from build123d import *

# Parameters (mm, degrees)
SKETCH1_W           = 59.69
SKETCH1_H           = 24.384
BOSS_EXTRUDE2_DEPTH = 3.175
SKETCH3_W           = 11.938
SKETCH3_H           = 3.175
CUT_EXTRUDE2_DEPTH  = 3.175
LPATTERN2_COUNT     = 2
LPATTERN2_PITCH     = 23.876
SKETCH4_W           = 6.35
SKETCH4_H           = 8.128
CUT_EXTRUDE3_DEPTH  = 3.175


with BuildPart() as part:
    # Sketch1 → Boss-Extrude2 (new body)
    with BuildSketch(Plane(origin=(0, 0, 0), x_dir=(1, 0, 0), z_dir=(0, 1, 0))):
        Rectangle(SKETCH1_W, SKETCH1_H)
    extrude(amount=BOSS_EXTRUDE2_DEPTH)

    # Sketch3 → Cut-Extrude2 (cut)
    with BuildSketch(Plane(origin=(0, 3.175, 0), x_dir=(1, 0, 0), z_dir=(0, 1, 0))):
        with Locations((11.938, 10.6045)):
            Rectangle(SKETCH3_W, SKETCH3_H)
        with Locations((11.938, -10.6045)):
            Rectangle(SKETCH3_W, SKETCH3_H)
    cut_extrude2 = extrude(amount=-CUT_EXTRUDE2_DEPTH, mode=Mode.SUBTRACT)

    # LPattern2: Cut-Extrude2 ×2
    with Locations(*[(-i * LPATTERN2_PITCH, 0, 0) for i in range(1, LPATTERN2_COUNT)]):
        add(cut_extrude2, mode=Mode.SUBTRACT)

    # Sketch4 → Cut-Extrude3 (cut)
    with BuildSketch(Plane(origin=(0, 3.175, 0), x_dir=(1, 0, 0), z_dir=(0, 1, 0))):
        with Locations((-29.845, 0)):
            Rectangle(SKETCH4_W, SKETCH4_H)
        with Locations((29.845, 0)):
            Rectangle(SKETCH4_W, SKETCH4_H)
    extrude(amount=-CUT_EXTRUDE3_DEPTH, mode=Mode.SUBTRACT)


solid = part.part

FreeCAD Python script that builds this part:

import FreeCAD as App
import Part
import Sketcher
Q = App.Units.Quantity


def add_polygon(sketch, points):
    """Adds a closed chain of lines whose ends are joined by coincident constraints."""
    first, n = sketch.GeometryCount, len(points)
    for a, b in zip(points, points[1:] + points[:1]):
        sketch.addGeometry(Part.LineSegment(App.Vector(*a, 0), App.Vector(*b, 0)), False)
    for i in range(n):
        sketch.addConstraint(Sketcher.Constraint("Coincident", first + i, 2, first + (i + 1) % n, 1))

doc = App.newDocument("Part")
body = doc.addObject("PartDesign::Body", "Body")

# Sketch on XZ plane
sketch1 = body.newObject("Sketcher::SketchObject", "Sketch")
sketch1.AttachmentSupport = (doc.getObject("XZ_Plane"), [""])
sketch1.MapMode = "FlatFace"
add_polygon(sketch1, [(-30, -12), (-30, 12), (30, 12), (30, -12)])  # lines 0-3
sketch1.addConstraint([
    Sketcher.Constraint("Vertical", 0),
    Sketcher.Constraint("Horizontal", 1),
    Sketcher.Constraint("Vertical", 2),
    Sketcher.Constraint("Horizontal", 3),
    Sketcher.Constraint("Symmetric", 0, 2, 2, 2, -1, 1),
    Sketcher.Constraint("DistanceX", 1, 1, 1, 2, Q("2.35 in")),
    Sketcher.Constraint("DistanceY", 0, 1, 0, 2, Q("0.96 in")),
])
pad1 = body.newObject("PartDesign::Pad", "Pad")
pad1.Profile = sketch1
pad1.Length = Q("0.125 in")
pad1.Reversed = True

# Sketch on XZ plane
sketch2 = body.newObject("Sketcher::SketchObject", "Sketch001")
sketch2.AttachmentSupport = (doc.getObject("XZ_Plane"), [""])
sketch2.MapMode = "FlatFace"
sketch2.AttachmentOffset = App.Placement(App.Vector(0, 0, -0.125 * 25.4), App.Rotation())
add_polygon(sketch2, [(6, -12.2), (6, -9), (17.9, -9), (17.9, -12.2)])  # lines 0-3
add_polygon(sketch2, [(6, 9), (6, 12.2), (17.9, 12.2), (17.9, 9)])  # lines 4-7
sketch2.addConstraint([
    Sketcher.Constraint("Vertical", 0),
    Sketcher.Constraint("Horizontal", 1),
    Sketcher.Constraint("Vertical", 2),
    Sketcher.Constraint("Horizontal", 3),
    Sketcher.Constraint("Vertical", 4),
    Sketcher.Constraint("Horizontal", 5),
    Sketcher.Constraint("Vertical", 6),
    Sketcher.Constraint("Horizontal", 7),
    Sketcher.Constraint("Symmetric", 3, 2, 4, 2, -1),
    Sketcher.Constraint("Symmetric", 1, 2, 6, 2, -1),
    Sketcher.Constraint("DistanceX", 1, 1, 1, 2, Q("0.47 in")),
    Sketcher.Constraint("DistanceY", 0, 1, 0, 2, Q("0.125 in")),
    Sketcher.Constraint("DistanceY", 2, 2, -1, 1, Q("0.48 in")),
    Sketcher.Constraint("DistanceX", -1, 1, 0, 2, Q("0.235 in")),
])
pocket1 = body.newObject("PartDesign::Pocket", "Pocket")
pocket1.Profile = sketch2
pocket1.Length = Q("0.125 in")
pocket1.Reversed = True
doc.recompute()

linearpattern = body.newObject("PartDesign::LinearPattern", "LinearPattern")
linearpattern.Originals = [pocket1]
linearpattern.Direction = (doc.getObject("X_Axis"), [""])
linearpattern.Mode = "offset"
linearpattern.Offset = Q("0.94 in")
linearpattern.Occurrences = 2
linearpattern.Reversed = True
body.Tip = linearpattern

# Sketch on XZ plane
sketch3 = body.newObject("Sketcher::SketchObject", "Sketch002")
sketch3.AttachmentSupport = (doc.getObject("XZ_Plane"), [""])
sketch3.MapMode = "FlatFace"
sketch3.AttachmentOffset = App.Placement(App.Vector(0, 0, -0.125 * 25.4), App.Rotation())
add_polygon(sketch3, [(-33, -4), (-33, 4), (-27, 4), (-27, -4)])  # lines 0-3
add_polygon(sketch3, [(27, -4), (27, 4), (33, 4), (33, -4)])  # lines 4-7
sketch3.addConstraint([
    Sketcher.Constraint("Vertical", 0),
    Sketcher.Constraint("Horizontal", 1),
    Sketcher.Constraint("Vertical", 2),
    Sketcher.Constraint("Horizontal", 3),
    Sketcher.Constraint("Vertical", 4),
    Sketcher.Constraint("Horizontal", 5),
    Sketcher.Constraint("Vertical", 6),
    Sketcher.Constraint("Horizontal", 7),
    Sketcher.Constraint("Symmetric", 2, 2, 4, 2, -1, 1),
    Sketcher.Constraint("Symmetric", 0, 2, 6, 2, -1, 1),
    Sketcher.Constraint("Horizontal", 1, 2, 4, 2),
    Sketcher.Constraint("DistanceX", 1, 1, 1, 2, Q("0.25 in")),
    Sketcher.Constraint("DistanceY", 0, 1, 0, 2, Q("0.32 in")),
    Sketcher.Constraint("DistanceX", 0, 2, -1, 1, Q("1.3 in")),
])
pocket2 = body.newObject("PartDesign::Pocket", "Pocket001")
pocket2.Profile = sketch3
pocket2.Length = Q("0.125 in")
pocket2.Reversed = True

doc.recompute()
